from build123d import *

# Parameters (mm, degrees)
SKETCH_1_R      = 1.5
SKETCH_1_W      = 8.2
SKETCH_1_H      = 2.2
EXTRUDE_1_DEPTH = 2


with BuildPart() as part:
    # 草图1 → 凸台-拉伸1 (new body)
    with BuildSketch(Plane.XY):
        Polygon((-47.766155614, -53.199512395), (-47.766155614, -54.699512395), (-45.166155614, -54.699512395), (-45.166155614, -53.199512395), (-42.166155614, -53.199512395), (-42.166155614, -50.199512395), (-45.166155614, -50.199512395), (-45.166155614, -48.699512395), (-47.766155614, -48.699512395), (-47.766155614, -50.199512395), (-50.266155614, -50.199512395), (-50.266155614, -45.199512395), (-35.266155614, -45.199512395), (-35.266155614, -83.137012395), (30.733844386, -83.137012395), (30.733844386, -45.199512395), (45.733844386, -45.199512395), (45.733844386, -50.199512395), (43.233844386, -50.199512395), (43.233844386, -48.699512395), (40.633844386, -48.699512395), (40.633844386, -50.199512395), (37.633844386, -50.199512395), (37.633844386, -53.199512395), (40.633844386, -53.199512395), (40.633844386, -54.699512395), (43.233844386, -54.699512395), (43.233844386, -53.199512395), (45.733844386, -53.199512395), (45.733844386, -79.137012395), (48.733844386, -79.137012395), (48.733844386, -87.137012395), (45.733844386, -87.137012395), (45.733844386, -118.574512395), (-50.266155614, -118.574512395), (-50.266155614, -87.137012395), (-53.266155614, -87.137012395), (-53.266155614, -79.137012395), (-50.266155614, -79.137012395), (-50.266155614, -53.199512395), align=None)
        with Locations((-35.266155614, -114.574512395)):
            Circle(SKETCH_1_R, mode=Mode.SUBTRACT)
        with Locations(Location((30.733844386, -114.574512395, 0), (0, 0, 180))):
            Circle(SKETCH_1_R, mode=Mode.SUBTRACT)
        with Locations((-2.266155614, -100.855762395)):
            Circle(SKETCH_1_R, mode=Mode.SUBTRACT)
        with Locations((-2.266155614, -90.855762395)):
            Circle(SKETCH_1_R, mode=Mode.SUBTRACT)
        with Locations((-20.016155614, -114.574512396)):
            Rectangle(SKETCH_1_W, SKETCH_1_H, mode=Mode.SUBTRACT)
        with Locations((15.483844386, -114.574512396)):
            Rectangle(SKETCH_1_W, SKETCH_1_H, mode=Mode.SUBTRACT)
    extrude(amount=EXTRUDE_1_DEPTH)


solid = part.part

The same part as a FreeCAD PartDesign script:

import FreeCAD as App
import Part
import Sketcher

V = App.Vector


def add_polygon(sketch, points):
    """Adds a closed chain of lines whose ends are joined by coincident constraints."""
    first, n = sketch.GeometryCount, len(points)
    for a, b in zip(points, points[1:] + points[:1]):
        sketch.addGeometry(Part.LineSegment(App.Vector(*a, 0), App.Vector(*b, 0)), False)
    for i in range(n):
        sketch.addConstraint(Sketcher.Constraint("Coincident", first + i, 2, first + (i + 1) % n, 1))

doc = App.newDocument("Part")
body = doc.addObject("PartDesign::Body", "Body")

# Sketch on XY plane
sketch1 = body.newObject("Sketcher::SketchObject", "Sketch")
sketch1.AttachmentSupport = (doc.getObject("XY_Plane"), [""])
sketch1.MapMode = "FlatFace"
add_polygon(sketch1, [(-47.8, -54.7), (-47.8, -53.2), (-50.3, -53.2), (-50.3, -79.1), (-53.3, -79.1), (-53.3, -87.1), (-50.3, -87.1), (-50.3, -118.6), (45.7, -118.6), (45.7, -87.1), (48.7, -87.1), (48.7, -79.1), (45.7, -79.1), (45.7, -53.2), (43.2, -53.2), (43.2, -54.7), (40.6, -54.7), (40.6, -53.2), (37.6, -53.2), (37.6, -50.2), (40.6, -50.2), (40.6, -48.7), (43.2, -48.7), (43.2, -50.2), (45.7, -50.2), (45.7, -45.2), (30.7, -45.2), (30.7, -83.1), (-35.3, -83.1), (-35.3, -45.2), (-50.3, -45.2), (-50.3, -50.2), (-47.8, -50.2), (-47.8, -48.7), (-45.2, -48.7), (-45.2, -50.2), (-42.2, -50.2), (-42.2, -53.2), (-45.2, -53.2), (-45.2, -54.7)])  # lines 0-39
sketch1.addGeometry(Part.Circle(V(30.7, -114.6, 0), V(0, 0, 1), 1.5), False)  # 40
add_polygon(sketch1, [(11.4, -115.7), (11.4, -113.5), (19.6, -113.5), (19.6, -115.7)])  # lines 41-44
add_polygon(sketch1, [(-24.1, -115.7), (-24.1, -113.5), (-15.9, -113.5), (-15.9, -115.7)])  # lines 45-48
sketch1.addGeometry(Part.Circle(V(-35.3, -114.6, 0), V(0, 0, 1), 1.5), False)  # 49
sketch1.addGeometry(Part.Circle(V(-2.3, -100.9, 0), V(0, 0, 1), 1.5), False)  # 50
sketch1.addGeometry(Part.Circle(V(-2.3, -90.9, 0), V(0, 0, 1), 1.5), False)  # 51
sketch1.addConstraint([
    Sketcher.Constraint("Vertical", 0),
    Sketcher.Constraint("Horizontal", 1),
    Sketcher.Constraint("Vertical", 2),
    Sketcher.Constraint("Horizontal", 3),
    Sketcher.Constraint("Vertical", 4),
    Sketcher.Constraint("Horizontal", 5),
    Sketcher.Constraint("Vertical", 6),
    Sketcher.Constraint("Horizontal", 7),
    Sketcher.Constraint("Vertical", 8),
    Sketcher.Constraint("Horizontal", 9),
    Sketcher.Constraint("Vertical", 10),
    Sketcher.Constraint("Horizontal", 11),
    Sketcher.Constraint("Vertical", 12),
    Sketcher.Constraint("Horizontal", 13),
    Sketcher.Constraint("Vertical", 14),
    Sketcher.Constraint("Horizontal", 15),
    Sketcher.Constraint("Vertical", 16),
    Sketcher.Constraint("Horizontal", 17),
    Sketcher.Constraint("Vertical", 18),
    Sketcher.Constraint("Horizontal", 19),
    Sketcher.Constraint("Vertical", 20),
    Sketcher.Constraint("Horizontal", 21),
    Sketcher.Constraint("Vertical", 22),
    Sketcher.Constraint("Horizontal", 23),
    Sketcher.Constraint("Vertical", 24),
    Sketcher.Constraint("Horizontal", 25),
    Sketcher.Constraint("Vertical", 26),
    Sketcher.Constraint("Horizontal", 27),
    Sketcher.Constraint("Vertical", 28),
    Sketcher.Constraint("Horizontal", 29),
    Sketcher.Constraint("Vertical", 30),
    Sketcher.Constraint("Horizontal", 31),
    Sketcher.Constraint("Vertical", 32),
    Sketcher.Constraint("Horizontal", 33),
    Sketcher.Constraint("Vertical", 34),
    Sketcher.Constraint("Horizontal", 35),
    Sketcher.Constraint("Vertical", 36),
    Sketcher.Constraint("Horizontal", 37),
    Sketcher.Constraint("Vertical", 38),
    Sketcher.Constraint("Horizontal", 39),
    Sketcher.Constraint("Vertical", 41),
    Sketcher.Constraint("Horizontal", 42),
    Sketcher.Constraint("Vertical", 43),
    Sketcher.Constraint("Horizontal", 44),
    Sketcher.Constraint("Vertical", 45),
    Sketcher.Constraint("Horizontal", 46),
    Sketcher.Constraint("Vertical", 47),
    Sketcher.Constraint("Horizontal", 48),
    Sketcher.Constraint("Equal", 40, 49),
    Sketcher.Constraint("Equal", 49, 50),
    Sketcher.Constraint("Equal", 50, 51),
    Sketcher.Constraint("Horizontal", 40, 3, 49, 3),
    Sketcher.Constraint("Horizontal", 5, 2, 8, 2),
    Sketcher.Constraint("Horizontal", 3, 2, 10, 2),
    Sketcher.Constraint("Horizontal", 1, 2, 12, 2),
    Sketcher.Constraint("Horizontal", 13, 2, 16, 2),
    Sketcher.Constraint("Horizontal", 19, 2, 22, 2),
    Sketcher.Constraint("Horizontal", 25, 2, 28, 2),
    Sketcher.Constraint("Horizontal", 23, 2, 30, 2),
    Sketcher.Constraint("Horizontal", 21, 2, 32, 2),
    Sketcher.Constraint("Horizontal", 31, 2, 34, 2),
    Sketcher.Constraint("Horizontal", 17, 2, 36, 2),
    Sketcher.Constraint("Horizontal", 15, 2, 38, 2),
    Sketcher.Constraint("Horizontal", 42, 2, 45, 2),
    Sketcher.Constraint("Horizontal", 44, 2, 47, 2),
    Sketcher.Constraint("Vertical", 50, 3, 51, 3),
    Sketcher.Constraint("Vertical", 2, 2, 5, 2),
    Sketcher.Constraint("Vertical", 8, 2, 11, 2),
    Sketcher.Constraint("Vertical", 16, 2, 19, 2),
    Sketcher.Constraint("Vertical", 14, 2, 21, 2),
    Sketcher.Constraint("Vertical", 12, 2, 23, 2),
    Sketcher.Constraint("Vertical", 40, 3, 25, 2),
    Sketcher.Constraint("Vertical", 49, 3, 27, 2),
    Sketcher.Constraint("Vertical", 6, 2, 29, 2),
    Sketcher.Constraint("Vertical", 0, 2, 31, 2),
    Sketcher.Constraint("Vertical", 34, 2, 37, 2),
    Sketcher.Constraint("Equal", 5, 9),
    Sketcher.Constraint("Equal", 1, 13),
    Sketcher.Constraint("Equal", 11, 17),
    Sketcher.Constraint("Equal", 25, 29),
    Sketcher.Constraint("Equal", 21, 33),
    Sketcher.Constraint("Equal", 19, 35),
    Sketcher.Constraint("Equal", 44, 46),
    Sketcher.Constraint("Equal", 37, 18),
    Sketcher.Constraint("Equal", 16, 20),
    Sketcher.Constraint("Diameter", 40, 3.0),
    Sketcher.Constraint("DistanceX", 3, 2, 3, 1, 3.0),
    Sketcher.Constraint("DistanceX", 7, 1, 7, 2, 96.0),
    Sketcher.Constraint("DistanceX", 25, 2, 25, 1, 15.0),
    Sketcher.Constraint("DistanceY", 4, 2, 4, 1, 8.0),
    Sketcher.Constraint("DistanceY", 24, 1, 24, 2, 5.0),
    Sketcher.Constraint("DistanceX", 1, 2, 1, 1, 2.5),
    Sketcher.Constraint("DistanceX", 15, 2, 15, 1, 2.6),
    Sketcher.Constraint("DistanceX", 42, 1, 42, 2, 8.2),
    Sketcher.Constraint("DistanceY", 0, 1, 0, 2, 1.5),
    Sketcher.Constraint("DistanceY", 41, 1, 41, 2, 2.2),
    Sketcher.Constraint("DistanceX", 50, 3, 40, 3, 33.0),
    Sketcher.Constraint("DistanceY", 50, 3, 51, 3, 10.0),
    Sketcher.Constraint("DistanceY", 6, 2, 49, 3, 4.0),
    Sketcher.Constraint("DistanceY", 8, 2, 26, 2, 4.0),
    Sketcher.Constraint("DistanceY", 40, 3, 41, 2, 1.1),
    Sketcher.Constraint("DistanceX", 46, 2, 41, 2, 27.3),
    Sketcher.Constraint("DistanceX", 50, 3, 41, 2, 13.65),
    Sketcher.Constraint("DistanceY", 2, 2, 2, 1, 25.9375),
    Sketcher.Constraint("DistanceY", 6, 2, 6, 1, 31.4375),
    Sketcher.Constraint("DistanceY", 40, 3, 50, 3, 13.71875),
    Sketcher.Constraint("DistanceX", -1, 1, 40, 3, 30.733844),
    Sketcher.Constraint("DistanceY", 40, 3, -1, 1, 114.574512),
])
pad1 = body.newObject("PartDesign::Pad", "Pad")
pad1.Profile = sketch1
pad1.Length = 2

doc.recompute()
